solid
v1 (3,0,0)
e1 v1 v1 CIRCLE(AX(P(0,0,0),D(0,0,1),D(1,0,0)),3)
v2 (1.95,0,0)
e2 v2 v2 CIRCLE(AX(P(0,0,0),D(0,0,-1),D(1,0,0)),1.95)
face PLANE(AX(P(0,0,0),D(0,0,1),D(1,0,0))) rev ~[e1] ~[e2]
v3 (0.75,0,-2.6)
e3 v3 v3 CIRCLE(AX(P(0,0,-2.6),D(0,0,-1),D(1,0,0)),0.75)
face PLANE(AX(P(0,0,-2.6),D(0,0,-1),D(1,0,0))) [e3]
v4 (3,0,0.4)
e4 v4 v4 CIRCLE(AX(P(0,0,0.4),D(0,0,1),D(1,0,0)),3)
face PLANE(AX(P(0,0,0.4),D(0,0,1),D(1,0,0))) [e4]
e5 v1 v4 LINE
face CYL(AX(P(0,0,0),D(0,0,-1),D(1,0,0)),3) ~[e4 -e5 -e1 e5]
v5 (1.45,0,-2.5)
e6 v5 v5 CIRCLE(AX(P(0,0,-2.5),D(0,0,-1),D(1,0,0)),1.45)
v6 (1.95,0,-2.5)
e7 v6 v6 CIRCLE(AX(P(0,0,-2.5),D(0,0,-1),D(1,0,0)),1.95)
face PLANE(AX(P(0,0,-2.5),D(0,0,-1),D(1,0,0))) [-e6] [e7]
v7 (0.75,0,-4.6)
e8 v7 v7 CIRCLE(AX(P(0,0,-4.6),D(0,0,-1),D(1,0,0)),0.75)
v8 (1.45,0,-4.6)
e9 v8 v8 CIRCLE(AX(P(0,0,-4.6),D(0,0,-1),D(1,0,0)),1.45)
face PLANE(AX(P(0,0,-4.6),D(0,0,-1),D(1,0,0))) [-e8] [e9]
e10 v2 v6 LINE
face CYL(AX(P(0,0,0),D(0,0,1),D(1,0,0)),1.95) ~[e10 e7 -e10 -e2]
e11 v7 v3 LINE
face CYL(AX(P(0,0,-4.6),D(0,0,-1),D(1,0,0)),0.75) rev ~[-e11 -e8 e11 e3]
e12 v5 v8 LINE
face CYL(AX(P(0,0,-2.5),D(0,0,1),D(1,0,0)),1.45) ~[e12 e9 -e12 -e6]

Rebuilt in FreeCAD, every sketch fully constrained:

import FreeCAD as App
import Part
import Sketcher

V = App.Vector
Q = App.Units.Quantity

doc = App.newDocument("Part")
body = doc.addObject("PartDesign::Body", "Body")

# Sketch on XY plane
sketch1 = doc.addObject("Sketcher::SketchObject", "Sketch")
body.addObject(sketch1)
sketch1.AttachmentSupport = (doc.XY_Plane, [""])
sketch1.MapMode = "FlatFace"
sketch1.addGeometry(Part.Circle(V(0, 0, 0), V(0, 0, 1), 3), False)
sketch1.addConstraint([
    Sketcher.Constraint("Coincident", 0, 3, -1, 1),
    Sketcher.Constraint("Diameter", 0, Q("6 mm")),
])
pad1 = doc.addObject("PartDesign::Pad", "Pad")
body.addObject(pad1)
pad1.Profile = sketch1
pad1.Length = 0.4

# Sketch on XY plane
sketch2 = doc.addObject("Sketcher::SketchObject", "Sketch001")
body.addObject(sketch2)
sketch2.AttachmentSupport = (doc.XY_Plane, [""])
sketch2.MapMode = "FlatFace"
sketch2.addGeometry(Part.Circle(V(0, 0, 0), V(0, 0, 1), 1.95), False)
sketch2.addConstraint([
    Sketcher.Constraint("Coincident", 0, 3, -1, 1),
    Sketcher.Constraint("Diameter", 0, Q("3.9 mm")),
])
pad2 = doc.addObject("PartDesign::Pad", "Pad001")
body.addObject(pad2)
pad2.Profile = sketch2
pad2.Length = 2.5
pad2.Reversed = True

# Sketch on XY plane
sketch3 = doc.addObject("Sketcher::SketchObject", "Sketch002")
body.addObject(sketch3)
sketch3.AttachmentSupport = (doc.XY_Plane, [""])
sketch3.MapMode = "FlatFace"
sketch3.AttachmentOffset = App.Placement(V(0, 0, -2.5), App.Rotation())
sketch3.addGeometry(Part.Circle(V(0, 0, 0), V(0, 0, 1), 1.45), False)
sketch3.addConstraint([
    Sketcher.Constraint("Coincident", 0, 3, -1, 1),
    Sketcher.Constraint("Diameter", 0, Q("2.9 mm")),
])
pad3 = doc.addObject("PartDesign::Pad", "Pad002")
body.addObject(pad3)
pad3.Profile = sketch3
pad3.Length = 2.1
pad3.Reversed = True

# Sketch on XY plane
sketch4 = doc.addObject("Sketcher::SketchObject", "Sketch003")
body.addObject(sketch4)
sketch4.AttachmentSupport = (doc.XY_Plane, [""])
sketch4.MapMode = "FlatFace"
sketch4.AttachmentOffset = App.Placement(V(0, 0, -4.6), App.Rotation())
sketch4.addGeometry(Part.Circle(V(0, 0, 0), V(0, 0, 1), 0.75), False)
sketch4.addConstraint([
    Sketcher.Constraint("Coincident", 0, 3, -1, 1),
    Sketcher.Constraint("Diameter", 0, Q("1.5 mm")),
])
pocket1 = doc.addObject("PartDesign::Pocket", "Pocket")
body.addObject(pocket1)
pocket1.Profile = sketch4
pocket1.Length = 2
pocket1.Reversed = True

doc.recompute()
